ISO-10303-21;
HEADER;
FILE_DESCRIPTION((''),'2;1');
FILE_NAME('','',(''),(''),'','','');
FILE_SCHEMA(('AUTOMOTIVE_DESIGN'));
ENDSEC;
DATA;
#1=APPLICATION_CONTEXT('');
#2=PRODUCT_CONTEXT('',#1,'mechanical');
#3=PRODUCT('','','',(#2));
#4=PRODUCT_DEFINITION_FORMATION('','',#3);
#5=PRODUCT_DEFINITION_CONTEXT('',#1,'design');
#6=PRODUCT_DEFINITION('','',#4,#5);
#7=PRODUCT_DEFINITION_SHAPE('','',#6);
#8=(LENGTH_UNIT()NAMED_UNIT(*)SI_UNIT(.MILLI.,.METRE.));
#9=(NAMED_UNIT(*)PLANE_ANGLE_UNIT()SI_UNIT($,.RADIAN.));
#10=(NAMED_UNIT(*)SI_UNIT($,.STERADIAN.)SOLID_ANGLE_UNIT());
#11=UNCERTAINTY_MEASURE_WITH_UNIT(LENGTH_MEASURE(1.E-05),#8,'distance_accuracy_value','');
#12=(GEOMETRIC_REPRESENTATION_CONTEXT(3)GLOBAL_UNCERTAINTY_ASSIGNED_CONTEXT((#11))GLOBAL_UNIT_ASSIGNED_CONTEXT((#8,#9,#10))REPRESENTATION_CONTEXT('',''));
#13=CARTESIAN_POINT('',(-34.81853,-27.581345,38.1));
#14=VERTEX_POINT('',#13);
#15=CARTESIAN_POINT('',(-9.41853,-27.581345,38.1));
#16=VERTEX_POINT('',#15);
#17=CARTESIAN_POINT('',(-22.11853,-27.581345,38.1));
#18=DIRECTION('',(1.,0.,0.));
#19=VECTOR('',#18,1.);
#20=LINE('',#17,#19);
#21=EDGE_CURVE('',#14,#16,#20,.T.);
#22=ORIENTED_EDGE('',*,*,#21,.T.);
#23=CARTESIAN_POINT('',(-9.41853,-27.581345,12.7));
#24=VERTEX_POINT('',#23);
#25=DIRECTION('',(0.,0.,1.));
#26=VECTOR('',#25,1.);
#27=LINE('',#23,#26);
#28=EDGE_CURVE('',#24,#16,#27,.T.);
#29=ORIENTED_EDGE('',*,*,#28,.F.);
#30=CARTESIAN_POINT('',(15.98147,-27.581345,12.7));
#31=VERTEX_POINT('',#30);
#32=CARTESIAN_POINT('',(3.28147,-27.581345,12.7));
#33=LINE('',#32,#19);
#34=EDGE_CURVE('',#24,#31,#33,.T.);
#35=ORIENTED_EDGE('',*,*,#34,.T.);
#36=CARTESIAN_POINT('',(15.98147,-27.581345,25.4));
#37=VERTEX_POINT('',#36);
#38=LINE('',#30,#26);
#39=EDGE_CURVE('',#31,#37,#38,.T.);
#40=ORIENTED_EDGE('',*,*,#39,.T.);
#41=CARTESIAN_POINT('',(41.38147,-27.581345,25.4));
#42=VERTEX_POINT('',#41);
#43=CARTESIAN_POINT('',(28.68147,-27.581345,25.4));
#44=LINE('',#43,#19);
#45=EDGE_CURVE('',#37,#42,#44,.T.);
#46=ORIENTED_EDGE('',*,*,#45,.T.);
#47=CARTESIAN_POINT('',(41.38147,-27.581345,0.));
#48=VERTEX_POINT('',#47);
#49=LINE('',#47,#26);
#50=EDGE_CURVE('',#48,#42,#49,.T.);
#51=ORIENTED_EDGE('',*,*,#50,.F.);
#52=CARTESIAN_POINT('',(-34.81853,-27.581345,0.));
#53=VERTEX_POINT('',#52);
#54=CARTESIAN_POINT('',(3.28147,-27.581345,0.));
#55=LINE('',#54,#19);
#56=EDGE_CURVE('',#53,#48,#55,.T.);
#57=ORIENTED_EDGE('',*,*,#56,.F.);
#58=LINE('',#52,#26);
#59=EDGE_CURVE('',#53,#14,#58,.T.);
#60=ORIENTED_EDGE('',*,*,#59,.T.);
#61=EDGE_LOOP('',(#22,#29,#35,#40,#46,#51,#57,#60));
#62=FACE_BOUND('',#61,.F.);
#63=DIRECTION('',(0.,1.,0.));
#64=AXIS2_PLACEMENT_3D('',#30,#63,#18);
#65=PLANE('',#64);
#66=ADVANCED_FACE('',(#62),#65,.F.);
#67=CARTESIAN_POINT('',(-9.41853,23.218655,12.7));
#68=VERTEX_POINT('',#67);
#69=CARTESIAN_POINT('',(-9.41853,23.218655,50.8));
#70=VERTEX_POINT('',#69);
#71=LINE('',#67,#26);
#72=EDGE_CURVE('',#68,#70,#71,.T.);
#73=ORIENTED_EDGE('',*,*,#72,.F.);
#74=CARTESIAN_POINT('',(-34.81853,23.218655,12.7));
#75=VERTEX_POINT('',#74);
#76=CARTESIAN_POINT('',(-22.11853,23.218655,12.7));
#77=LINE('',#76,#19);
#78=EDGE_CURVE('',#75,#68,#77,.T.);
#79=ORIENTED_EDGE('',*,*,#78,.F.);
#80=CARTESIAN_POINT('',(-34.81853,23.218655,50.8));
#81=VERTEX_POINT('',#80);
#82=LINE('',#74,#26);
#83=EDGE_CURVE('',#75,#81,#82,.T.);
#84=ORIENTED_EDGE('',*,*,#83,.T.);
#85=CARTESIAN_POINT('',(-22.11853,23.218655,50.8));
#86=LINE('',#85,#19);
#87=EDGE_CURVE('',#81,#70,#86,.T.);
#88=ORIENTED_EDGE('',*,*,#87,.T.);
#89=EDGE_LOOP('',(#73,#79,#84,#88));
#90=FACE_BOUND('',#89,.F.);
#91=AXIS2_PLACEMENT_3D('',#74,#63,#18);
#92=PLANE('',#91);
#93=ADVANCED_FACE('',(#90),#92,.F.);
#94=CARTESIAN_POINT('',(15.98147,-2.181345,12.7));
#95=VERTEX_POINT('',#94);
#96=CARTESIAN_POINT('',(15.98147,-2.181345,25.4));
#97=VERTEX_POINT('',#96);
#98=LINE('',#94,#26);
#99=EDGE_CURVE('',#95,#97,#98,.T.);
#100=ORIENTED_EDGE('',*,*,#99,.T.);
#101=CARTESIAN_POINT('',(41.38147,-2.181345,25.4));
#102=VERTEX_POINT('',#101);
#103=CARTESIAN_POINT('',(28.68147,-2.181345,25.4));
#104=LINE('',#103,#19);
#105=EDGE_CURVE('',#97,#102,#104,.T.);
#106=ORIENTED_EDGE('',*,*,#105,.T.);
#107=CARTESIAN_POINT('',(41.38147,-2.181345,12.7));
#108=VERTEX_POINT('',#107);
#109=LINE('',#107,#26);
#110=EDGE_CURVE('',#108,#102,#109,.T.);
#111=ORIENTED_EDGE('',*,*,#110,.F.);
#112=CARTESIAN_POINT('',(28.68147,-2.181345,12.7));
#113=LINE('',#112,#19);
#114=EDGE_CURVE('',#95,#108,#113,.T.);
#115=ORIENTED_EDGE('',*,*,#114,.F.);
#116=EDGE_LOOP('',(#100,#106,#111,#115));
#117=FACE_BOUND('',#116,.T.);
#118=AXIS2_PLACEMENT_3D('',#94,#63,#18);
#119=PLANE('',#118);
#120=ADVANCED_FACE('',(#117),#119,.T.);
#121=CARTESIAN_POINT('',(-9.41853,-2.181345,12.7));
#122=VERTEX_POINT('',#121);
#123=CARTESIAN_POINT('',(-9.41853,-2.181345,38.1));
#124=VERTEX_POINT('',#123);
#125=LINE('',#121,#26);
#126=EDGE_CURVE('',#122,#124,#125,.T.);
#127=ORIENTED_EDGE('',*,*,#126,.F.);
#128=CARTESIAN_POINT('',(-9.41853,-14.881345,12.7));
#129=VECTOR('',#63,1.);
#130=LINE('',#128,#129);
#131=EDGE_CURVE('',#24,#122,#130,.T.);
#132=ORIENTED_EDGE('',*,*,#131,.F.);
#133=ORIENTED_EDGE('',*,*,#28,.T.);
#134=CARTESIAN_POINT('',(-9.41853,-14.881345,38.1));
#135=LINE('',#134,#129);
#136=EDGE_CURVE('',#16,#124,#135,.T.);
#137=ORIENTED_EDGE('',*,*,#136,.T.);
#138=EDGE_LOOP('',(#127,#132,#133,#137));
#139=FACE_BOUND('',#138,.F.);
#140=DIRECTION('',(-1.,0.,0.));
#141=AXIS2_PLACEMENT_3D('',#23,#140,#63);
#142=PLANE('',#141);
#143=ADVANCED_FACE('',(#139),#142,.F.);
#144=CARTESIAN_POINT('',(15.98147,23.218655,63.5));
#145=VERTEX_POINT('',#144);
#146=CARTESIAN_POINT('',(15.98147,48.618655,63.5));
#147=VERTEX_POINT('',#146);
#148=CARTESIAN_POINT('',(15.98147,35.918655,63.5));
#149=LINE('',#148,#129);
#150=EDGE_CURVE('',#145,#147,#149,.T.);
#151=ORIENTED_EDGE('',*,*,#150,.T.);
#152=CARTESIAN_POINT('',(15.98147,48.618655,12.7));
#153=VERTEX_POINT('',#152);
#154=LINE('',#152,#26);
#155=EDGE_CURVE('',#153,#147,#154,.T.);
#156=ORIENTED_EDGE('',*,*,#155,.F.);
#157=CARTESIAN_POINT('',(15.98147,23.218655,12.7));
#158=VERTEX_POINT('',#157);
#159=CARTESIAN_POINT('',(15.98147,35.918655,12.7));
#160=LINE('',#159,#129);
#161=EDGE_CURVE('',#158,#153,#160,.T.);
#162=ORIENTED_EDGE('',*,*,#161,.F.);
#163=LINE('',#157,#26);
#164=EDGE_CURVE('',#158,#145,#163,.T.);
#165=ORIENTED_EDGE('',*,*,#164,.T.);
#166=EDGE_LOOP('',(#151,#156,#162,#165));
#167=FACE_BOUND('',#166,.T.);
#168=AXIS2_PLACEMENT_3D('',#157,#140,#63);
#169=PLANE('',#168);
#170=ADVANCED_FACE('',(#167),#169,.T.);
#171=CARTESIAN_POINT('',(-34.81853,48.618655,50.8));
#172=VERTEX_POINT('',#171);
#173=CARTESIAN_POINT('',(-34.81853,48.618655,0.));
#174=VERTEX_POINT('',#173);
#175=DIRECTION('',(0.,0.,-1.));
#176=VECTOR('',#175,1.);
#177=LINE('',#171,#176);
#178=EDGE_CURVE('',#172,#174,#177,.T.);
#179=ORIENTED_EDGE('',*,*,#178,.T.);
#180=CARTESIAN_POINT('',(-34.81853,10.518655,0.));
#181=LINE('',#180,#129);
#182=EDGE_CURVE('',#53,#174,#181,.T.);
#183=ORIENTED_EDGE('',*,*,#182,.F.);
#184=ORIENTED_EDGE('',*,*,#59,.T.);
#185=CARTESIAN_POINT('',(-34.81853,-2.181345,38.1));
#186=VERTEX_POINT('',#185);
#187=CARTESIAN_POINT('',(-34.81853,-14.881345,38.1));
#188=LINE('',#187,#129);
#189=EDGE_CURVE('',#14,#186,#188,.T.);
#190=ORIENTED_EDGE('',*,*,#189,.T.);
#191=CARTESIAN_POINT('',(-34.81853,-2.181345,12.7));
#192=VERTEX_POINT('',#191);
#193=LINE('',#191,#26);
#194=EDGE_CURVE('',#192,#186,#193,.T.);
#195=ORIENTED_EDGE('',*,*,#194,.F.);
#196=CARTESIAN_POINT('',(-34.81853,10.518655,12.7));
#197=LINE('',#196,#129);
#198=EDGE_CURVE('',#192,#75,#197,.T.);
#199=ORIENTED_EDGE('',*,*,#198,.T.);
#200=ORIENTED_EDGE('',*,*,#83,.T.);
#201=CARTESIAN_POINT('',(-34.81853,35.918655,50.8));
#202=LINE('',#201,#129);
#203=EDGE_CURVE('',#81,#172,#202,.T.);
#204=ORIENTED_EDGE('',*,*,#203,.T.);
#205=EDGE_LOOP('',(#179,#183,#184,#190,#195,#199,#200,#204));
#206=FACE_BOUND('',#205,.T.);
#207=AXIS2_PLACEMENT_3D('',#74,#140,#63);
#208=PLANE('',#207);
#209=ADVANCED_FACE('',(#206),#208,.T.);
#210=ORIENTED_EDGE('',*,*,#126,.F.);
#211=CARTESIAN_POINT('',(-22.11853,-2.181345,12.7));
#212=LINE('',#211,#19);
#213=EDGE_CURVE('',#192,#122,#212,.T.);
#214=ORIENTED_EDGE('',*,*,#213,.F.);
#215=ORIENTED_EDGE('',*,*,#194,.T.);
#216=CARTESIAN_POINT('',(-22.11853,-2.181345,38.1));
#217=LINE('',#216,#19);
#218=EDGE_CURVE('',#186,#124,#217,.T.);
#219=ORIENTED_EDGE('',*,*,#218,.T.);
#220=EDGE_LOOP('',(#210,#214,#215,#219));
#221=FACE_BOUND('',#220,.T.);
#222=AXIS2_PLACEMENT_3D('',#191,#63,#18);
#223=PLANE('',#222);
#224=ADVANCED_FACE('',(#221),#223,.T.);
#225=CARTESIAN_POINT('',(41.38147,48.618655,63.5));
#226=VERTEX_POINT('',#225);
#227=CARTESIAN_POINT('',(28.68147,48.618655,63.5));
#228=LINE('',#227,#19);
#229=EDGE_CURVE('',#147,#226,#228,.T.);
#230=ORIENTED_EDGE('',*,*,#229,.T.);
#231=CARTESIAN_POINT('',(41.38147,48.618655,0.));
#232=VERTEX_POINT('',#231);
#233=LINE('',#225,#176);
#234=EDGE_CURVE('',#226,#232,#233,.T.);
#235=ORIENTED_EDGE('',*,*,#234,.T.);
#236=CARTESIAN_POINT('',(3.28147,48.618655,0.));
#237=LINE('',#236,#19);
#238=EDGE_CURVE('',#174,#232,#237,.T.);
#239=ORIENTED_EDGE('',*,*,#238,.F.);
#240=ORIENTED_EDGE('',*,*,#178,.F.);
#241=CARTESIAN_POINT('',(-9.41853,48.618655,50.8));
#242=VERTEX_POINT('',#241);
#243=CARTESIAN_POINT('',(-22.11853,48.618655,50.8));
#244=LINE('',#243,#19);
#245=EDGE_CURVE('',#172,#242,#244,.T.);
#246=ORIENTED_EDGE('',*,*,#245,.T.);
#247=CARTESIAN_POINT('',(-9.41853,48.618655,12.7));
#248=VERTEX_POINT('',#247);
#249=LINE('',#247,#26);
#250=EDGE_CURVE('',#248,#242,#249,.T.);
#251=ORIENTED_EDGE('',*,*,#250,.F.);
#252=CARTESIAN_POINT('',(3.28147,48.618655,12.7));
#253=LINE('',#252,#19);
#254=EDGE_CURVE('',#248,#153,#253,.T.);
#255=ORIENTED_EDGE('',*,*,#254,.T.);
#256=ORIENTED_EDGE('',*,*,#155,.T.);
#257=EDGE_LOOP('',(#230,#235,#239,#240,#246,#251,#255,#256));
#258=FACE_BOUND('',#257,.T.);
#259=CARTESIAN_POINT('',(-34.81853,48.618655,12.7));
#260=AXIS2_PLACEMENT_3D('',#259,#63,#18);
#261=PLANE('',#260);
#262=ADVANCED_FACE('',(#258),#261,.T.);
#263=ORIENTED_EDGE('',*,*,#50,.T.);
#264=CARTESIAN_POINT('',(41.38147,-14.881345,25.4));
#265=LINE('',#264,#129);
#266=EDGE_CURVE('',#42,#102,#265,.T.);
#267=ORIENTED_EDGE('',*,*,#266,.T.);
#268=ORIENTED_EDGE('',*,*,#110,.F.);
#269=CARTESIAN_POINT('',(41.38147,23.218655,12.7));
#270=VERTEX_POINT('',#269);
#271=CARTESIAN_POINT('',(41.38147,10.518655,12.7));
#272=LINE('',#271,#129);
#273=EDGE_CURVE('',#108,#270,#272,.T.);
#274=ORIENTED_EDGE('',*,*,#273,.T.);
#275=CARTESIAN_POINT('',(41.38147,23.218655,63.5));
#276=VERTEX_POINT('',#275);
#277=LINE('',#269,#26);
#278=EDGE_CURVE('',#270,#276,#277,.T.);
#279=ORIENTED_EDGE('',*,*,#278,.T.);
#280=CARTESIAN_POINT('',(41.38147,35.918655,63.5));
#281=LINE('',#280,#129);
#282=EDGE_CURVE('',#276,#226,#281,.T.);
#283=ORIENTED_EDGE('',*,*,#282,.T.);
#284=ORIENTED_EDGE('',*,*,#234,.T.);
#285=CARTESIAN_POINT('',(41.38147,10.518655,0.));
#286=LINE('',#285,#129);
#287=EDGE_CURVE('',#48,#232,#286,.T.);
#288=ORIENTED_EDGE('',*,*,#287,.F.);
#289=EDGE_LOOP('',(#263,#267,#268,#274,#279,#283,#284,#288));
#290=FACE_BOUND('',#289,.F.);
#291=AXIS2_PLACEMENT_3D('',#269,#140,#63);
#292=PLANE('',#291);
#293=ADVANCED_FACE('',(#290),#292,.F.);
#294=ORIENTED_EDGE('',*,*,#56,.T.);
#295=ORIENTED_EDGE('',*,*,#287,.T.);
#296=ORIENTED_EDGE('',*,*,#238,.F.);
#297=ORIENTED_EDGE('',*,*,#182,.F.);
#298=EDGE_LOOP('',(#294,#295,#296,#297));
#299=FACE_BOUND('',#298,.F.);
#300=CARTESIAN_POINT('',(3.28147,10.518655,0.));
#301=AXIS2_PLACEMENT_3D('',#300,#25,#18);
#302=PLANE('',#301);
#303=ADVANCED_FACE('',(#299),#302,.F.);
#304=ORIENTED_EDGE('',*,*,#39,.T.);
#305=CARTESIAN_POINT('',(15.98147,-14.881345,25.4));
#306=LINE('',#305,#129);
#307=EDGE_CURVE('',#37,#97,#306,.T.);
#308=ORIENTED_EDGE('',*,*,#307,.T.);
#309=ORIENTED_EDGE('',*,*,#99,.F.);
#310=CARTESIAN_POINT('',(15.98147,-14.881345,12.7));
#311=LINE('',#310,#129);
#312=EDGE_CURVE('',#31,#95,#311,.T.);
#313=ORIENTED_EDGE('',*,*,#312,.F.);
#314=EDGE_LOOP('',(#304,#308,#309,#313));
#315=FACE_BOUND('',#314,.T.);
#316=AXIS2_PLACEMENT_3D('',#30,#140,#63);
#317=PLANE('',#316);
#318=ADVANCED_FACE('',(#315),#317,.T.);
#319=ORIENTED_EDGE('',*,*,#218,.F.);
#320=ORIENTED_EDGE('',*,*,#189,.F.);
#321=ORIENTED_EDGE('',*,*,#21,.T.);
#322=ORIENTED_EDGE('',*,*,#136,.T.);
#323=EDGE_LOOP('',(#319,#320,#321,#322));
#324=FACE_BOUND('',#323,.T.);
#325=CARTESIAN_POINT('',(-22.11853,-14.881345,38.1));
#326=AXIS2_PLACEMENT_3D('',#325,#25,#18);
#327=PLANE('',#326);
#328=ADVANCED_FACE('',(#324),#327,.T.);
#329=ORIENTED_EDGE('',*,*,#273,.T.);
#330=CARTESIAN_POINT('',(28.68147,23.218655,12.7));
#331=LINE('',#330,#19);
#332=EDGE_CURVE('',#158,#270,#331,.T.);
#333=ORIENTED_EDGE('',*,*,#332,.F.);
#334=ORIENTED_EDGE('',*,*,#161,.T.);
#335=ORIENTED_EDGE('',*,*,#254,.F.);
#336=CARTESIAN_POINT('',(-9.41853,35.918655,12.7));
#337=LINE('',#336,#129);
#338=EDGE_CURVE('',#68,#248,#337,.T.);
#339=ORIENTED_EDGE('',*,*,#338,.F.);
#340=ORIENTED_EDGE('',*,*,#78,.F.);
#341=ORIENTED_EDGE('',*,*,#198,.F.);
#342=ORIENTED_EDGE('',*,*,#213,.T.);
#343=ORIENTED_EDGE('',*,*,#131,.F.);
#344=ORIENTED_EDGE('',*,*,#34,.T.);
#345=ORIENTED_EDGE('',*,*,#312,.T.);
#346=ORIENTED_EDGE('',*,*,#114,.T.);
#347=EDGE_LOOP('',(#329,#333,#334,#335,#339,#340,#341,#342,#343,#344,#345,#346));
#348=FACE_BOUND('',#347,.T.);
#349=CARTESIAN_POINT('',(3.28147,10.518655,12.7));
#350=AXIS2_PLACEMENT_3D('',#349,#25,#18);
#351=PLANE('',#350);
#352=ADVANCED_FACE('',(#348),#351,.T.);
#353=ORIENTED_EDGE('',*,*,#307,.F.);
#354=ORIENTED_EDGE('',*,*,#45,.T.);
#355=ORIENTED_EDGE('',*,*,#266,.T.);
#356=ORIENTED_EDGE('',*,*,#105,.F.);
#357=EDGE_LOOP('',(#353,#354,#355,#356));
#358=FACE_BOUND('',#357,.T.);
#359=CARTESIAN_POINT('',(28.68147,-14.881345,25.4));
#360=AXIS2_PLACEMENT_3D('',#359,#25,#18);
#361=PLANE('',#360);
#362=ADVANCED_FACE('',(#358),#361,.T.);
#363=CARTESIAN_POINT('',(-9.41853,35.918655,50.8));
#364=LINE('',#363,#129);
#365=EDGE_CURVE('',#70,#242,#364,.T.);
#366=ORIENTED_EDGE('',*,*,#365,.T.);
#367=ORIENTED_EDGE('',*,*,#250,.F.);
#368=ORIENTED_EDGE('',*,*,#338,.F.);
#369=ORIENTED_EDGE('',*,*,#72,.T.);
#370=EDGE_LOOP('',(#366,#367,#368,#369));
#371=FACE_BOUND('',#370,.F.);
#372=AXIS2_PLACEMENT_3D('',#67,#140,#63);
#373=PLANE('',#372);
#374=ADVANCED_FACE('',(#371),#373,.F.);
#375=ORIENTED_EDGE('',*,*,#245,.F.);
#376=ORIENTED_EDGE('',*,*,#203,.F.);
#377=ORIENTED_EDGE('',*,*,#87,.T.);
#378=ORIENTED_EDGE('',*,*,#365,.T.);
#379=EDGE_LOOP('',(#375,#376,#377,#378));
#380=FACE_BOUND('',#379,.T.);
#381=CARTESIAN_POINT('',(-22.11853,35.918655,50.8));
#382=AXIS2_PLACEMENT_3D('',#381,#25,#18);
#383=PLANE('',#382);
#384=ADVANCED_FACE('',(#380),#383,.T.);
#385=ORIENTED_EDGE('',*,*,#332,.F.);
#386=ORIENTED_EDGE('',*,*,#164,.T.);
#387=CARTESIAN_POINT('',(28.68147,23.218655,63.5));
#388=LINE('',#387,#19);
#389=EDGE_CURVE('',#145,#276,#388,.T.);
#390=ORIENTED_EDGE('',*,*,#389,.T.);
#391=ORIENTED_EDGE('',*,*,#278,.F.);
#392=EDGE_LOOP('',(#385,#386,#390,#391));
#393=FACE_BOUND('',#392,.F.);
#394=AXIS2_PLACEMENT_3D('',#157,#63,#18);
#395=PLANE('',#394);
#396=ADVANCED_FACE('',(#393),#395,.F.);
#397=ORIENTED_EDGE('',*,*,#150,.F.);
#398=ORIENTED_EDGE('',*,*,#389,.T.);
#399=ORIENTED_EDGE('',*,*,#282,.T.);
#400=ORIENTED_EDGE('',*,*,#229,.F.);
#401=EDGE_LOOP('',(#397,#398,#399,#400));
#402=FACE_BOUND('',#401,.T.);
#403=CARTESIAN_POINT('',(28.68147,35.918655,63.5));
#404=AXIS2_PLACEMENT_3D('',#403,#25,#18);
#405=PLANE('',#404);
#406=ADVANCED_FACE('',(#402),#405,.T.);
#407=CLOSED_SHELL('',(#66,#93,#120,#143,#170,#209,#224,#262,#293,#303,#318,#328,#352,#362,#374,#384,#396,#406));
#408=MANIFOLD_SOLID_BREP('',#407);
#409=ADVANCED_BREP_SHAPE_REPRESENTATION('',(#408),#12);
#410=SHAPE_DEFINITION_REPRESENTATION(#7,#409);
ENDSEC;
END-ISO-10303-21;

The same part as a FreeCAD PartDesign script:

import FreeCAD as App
import Part
import Sketcher

V = App.Vector
Q = App.Units.Quantity


def add_polygon(sketch, points):
    """Adds a closed chain of lines whose ends are joined by coincident constraints."""
    first, n = sketch.GeometryCount, len(points)
    for a, b in zip(points, points[1:] + points[:1]):
        sketch.addGeometry(Part.LineSegment(App.Vector(*a, 0), App.Vector(*b, 0)), False)
    for i in range(n):
        sketch.addConstraint(Sketcher.Constraint("Coincident", first + i, 2, first + (i + 1) % n, 1))

doc = App.newDocument("Part")
body = doc.addObject("PartDesign::Body", "Body")

sketch1 = body.newObject("Sketcher::SketchObject", "Sketch")
sketch1.AttachmentSupport = (doc.getObject("XY_Plane"), [""])
sketch1.MapMode = "FlatFace"
add_polygon(sketch1, [(-35, 49), (-35, -28), (41, -28), (41, 49)])
sketch1.addConstraint([
    Sketcher.Constraint("Vertical", 0),
    Sketcher.Constraint("Horizontal", 1),
    Sketcher.Constraint("Vertical", 2),
    Sketcher.Constraint("Horizontal", 3),
    Sketcher.Constraint("Equal", 3, 0),
    Sketcher.Constraint("DistanceX", 1, 1, 1, 2, Q("3 in")),
    Sketcher.Constraint("DistanceX", 0, 2, -1, 1, 34.81853),
    Sketcher.Constraint("DistanceY", 0, 2, -1, 1, 27.581345),
])
pad1 = body.newObject("PartDesign::Pad", "Pad")
pad1.Profile = sketch1
pad1.Length = Q("0.5 in")

sketch2 = body.newObject("Sketcher::SketchObject", "Sketch001")
sketch2.AttachmentSupport = (doc.getObject("XY_Plane"), [""])
sketch2.MapMode = "FlatFace"
sketch2.AttachmentOffset = App.Placement(V(0, 0, 0.5 * 25.4), App.Rotation())
add_polygon(sketch2, [(-35, -2), (-35, -28), (-9, -28), (-9, -2)])
sketch2.addConstraint([
    Sketcher.Constraint("Vertical", 0),
    Sketcher.Constraint("Horizontal", 1),
    Sketcher.Constraint("Vertical", 2),
    Sketcher.Constraint("Horizontal", 3),
    Sketcher.Constraint("Equal", 3, 0),
    Sketcher.Constraint("DistanceX", 1, 1, 1, 2, Q("1 in")),
    Sketcher.Constraint("DistanceX", 0, 2, -1, 1, 34.81853),
    Sketcher.Constraint("DistanceY", 0, 2, -1, 1, 27.581345),
])
pad2 = body.newObject("PartDesign::Pad", "Pad001")
pad2.Profile = sketch2
pad2.Length = Q("1 in")

sketch3 = body.newObject("Sketcher::SketchObject", "Sketch002")
sketch3.AttachmentSupport = (doc.getObject("XY_Plane"), [""])
sketch3.MapMode = "FlatFace"
sketch3.AttachmentOffset = App.Placement(V(0, 0, 0.5 * 25.4), App.Rotation())
add_polygon(sketch3, [(16, -2), (16, -28), (41, -28), (41, -2)])
sketch3.addConstraint([
    Sketcher.Constraint("Vertical", 0),
    Sketcher.Constraint("Horizontal", 1),
    Sketcher.Constraint("Vertical", 2),
    Sketcher.Constraint("Horizontal", 3),
    Sketcher.Constraint("Equal", 3, 0),
    Sketcher.Constraint("DistanceX", 1, 1, 1, 2, Q("1 in")),
    Sketcher.Constraint("DistanceX", -1, 1, 0, 2, 15.98147),
    Sketcher.Constraint("DistanceY", 0, 2, -1, 1, 27.581345),
])
pad3 = body.newObject("PartDesign::Pad", "Pad002")
pad3.Profile = sketch3
pad3.Length = Q("0.5 in")

sketch4 = body.newObject("Sketcher::SketchObject", "Sketch003")
sketch4.AttachmentSupport = (doc.getObject("XY_Plane"), [""])
sketch4.MapMode = "FlatFace"
sketch4.AttachmentOffset = App.Placement(V(0, 0, 0.5 * 25.4), App.Rotation())
add_polygon(sketch4, [(16, 49), (16, 23), (41, 23), (41, 49)])
sketch4.addConstraint([
    Sketcher.Constraint("Vertical", 0),
    Sketcher.Constraint("Horizontal", 1),
    Sketcher.Constraint("Vertical", 2),
    Sketcher.Constraint("Horizontal", 3),
    Sketcher.Constraint("Equal", 3, 0),
    Sketcher.Constraint("DistanceX", 1, 1, 1, 2, Q("1 in")),
    Sketcher.Constraint("DistanceX", -1, 1, 0, 2, 15.98147),
    Sketcher.Constraint("DistanceY", -1, 1, 0, 2, 23.218655),
])
pad4 = body.newObject("PartDesign::Pad", "Pad003")
pad4.Profile = sketch4
pad4.Length = Q("2 in")

sketch5 = body.newObject("Sketcher::SketchObject", "Sketch004")
sketch5.AttachmentSupport = (doc.getObject("XY_Plane"), [""])
sketch5.MapMode = "FlatFace"
sketch5.AttachmentOffset = App.Placement(V(0, 0, 0.5 * 25.4), App.Rotation())
add_polygon(sketch5, [(-35, 49), (-35, 23), (-9, 23), (-9, 49)])
sketch5.addConstraint([
    Sketcher.Constraint("Vertical", 0),
    Sketcher.Constraint("Horizontal", 1),
    Sketcher.Constraint("Vertical", 2),
    Sketcher.Constraint("Horizontal", 3),
    Sketcher.Constraint("Equal", 3, 0),
    Sketcher.Constraint("DistanceX", 1, 1, 1, 2, Q("1 in")),
    Sketcher.Constraint("DistanceX", 0, 2, -1, 1, 34.81853),
    Sketcher.Constraint("DistanceY", -1, 1, 0, 2, 23.218655),
])
pad5 = body.newObject("PartDesign::Pad", "Pad004")
pad5.Profile = sketch5
pad5.Length = Q("1.5 in")

doc.recompute()
